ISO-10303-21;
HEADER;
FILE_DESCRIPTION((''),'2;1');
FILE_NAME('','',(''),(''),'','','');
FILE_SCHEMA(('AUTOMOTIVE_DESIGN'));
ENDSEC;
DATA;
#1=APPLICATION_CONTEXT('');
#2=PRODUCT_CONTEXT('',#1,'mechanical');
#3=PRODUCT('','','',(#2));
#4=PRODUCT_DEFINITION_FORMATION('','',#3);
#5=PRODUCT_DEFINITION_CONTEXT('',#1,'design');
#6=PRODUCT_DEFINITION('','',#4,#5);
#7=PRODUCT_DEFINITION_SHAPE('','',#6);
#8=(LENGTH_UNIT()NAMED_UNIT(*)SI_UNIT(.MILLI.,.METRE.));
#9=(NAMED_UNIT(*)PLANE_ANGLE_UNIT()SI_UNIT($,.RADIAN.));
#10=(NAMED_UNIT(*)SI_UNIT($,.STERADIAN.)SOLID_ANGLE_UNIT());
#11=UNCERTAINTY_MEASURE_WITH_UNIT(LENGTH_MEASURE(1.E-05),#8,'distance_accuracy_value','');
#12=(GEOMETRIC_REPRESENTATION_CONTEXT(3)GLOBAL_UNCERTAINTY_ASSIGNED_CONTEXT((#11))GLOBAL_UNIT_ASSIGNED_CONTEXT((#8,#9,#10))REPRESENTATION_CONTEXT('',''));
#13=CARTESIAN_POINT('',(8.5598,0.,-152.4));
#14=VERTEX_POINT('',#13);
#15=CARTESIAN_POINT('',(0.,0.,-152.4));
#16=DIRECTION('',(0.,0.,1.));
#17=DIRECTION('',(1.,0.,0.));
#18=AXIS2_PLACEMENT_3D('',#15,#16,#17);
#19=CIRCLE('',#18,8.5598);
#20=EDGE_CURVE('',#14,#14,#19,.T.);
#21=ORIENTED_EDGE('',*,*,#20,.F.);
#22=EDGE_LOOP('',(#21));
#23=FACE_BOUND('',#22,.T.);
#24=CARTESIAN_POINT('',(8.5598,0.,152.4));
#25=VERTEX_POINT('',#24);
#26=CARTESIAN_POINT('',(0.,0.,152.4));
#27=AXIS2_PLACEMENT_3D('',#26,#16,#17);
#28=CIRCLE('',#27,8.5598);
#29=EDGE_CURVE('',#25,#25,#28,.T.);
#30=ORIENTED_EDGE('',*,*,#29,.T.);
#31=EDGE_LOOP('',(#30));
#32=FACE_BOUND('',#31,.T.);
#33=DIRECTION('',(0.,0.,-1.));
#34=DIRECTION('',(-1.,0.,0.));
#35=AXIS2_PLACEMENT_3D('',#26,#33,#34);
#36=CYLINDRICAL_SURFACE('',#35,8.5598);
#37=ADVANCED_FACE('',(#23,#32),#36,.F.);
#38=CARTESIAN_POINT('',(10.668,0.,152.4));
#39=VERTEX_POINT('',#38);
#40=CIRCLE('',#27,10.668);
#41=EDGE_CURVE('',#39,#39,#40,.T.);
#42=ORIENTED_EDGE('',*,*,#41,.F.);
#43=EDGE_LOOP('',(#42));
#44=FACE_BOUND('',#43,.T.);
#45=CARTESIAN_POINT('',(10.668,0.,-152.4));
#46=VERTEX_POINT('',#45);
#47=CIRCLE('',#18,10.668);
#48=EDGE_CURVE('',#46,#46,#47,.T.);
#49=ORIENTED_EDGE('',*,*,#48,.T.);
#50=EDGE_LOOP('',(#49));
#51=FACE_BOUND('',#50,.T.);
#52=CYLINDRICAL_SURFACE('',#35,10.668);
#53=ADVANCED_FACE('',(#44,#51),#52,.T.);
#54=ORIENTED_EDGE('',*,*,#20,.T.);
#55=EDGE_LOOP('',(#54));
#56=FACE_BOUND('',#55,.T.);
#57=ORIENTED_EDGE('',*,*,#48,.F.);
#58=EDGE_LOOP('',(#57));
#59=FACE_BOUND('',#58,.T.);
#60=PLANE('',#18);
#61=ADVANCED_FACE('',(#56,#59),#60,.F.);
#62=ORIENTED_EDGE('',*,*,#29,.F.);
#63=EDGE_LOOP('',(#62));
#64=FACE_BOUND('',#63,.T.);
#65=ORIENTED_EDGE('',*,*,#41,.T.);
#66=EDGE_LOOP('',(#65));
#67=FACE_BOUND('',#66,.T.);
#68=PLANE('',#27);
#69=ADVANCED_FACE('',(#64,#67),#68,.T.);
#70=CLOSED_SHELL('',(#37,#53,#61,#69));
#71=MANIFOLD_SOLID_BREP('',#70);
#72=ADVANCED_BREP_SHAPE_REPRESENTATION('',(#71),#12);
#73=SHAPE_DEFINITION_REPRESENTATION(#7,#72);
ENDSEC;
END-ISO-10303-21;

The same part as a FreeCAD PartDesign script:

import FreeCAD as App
import Part
import Sketcher

V = App.Vector
Q = App.Units.Quantity

doc = App.newDocument("Part")
body = doc.addObject("PartDesign::Body", "Body")

# Sketch on XY plane
sketch1 = doc.addObject("Sketcher::SketchObject", "Sketch")
body.addObject(sketch1)
sketch1.AttachmentSupport = (doc.XY_Plane, [""])
sketch1.MapMode = "FlatFace"
sketch1.addGeometry([
    Part.Circle(V(0, 0, 0), V(0, 0, 1), 11),
    Part.Circle(V(0, 0, 0), V(0, 0, 1), 9),
], False)
sketch1.addConstraint([
    Sketcher.Constraint("Coincident", 0, 3, -1, 1),
    Sketcher.Constraint("Coincident", 1, 3, -1, 1),
    Sketcher.Constraint("Diameter", 0, Q("0.84 in")),
    Sketcher.Constraint("Diameter", 1, Q("0.674 in")),
])
pad1 = doc.addObject("PartDesign::Pad", "Pad")
body.addObject(pad1)
pad1.Profile = sketch1
pad1.Type = "TwoLengths"
pad1.Length = Q("6 in")
pad1.Length2 = Q("6 in")

doc.recompute()
